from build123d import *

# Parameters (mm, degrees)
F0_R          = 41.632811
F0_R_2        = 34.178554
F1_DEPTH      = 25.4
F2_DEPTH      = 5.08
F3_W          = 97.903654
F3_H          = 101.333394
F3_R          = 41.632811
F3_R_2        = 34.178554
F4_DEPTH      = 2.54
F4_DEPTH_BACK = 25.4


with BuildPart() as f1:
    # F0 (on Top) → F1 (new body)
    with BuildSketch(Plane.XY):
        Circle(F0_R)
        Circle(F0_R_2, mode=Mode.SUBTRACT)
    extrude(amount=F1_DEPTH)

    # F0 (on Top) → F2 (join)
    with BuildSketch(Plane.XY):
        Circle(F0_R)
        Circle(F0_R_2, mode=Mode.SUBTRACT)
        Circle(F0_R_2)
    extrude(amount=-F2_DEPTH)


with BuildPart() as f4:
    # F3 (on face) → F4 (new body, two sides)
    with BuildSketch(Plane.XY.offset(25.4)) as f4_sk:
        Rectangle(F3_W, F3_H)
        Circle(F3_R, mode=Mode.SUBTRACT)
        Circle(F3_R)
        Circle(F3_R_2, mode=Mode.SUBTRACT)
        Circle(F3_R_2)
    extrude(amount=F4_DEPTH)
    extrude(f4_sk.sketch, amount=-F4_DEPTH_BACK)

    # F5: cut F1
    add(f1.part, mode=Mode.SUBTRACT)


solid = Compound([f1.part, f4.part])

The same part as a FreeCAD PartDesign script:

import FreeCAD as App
import Part
import Sketcher

V = App.Vector
Q = App.Units.Quantity


def add_polygon(sketch, points):
    """Adds a closed chain of lines whose ends are joined by coincident constraints."""
    first, n = sketch.GeometryCount, len(points)
    for a, b in zip(points, points[1:] + points[:1]):
        sketch.addGeometry(Part.LineSegment(App.Vector(*a, 0), App.Vector(*b, 0)), False)
    for i in range(n):
        sketch.addConstraint(Sketcher.Constraint("Coincident", first + i, 2, first + (i + 1) % n, 1))

doc = App.newDocument("Part")
body = doc.addObject("PartDesign::Body", "Body")

# Sketch on XY plane
sketch1 = body.newObject("Sketcher::SketchObject", "Sketch")
sketch1.AttachmentSupport = (doc.getObject("XY_Plane"), [""])
sketch1.MapMode = "FlatFace"
sketch1.addGeometry(Part.Circle(V(0, 0, 0), V(0, 0, 1), 42), False)
sketch1.addGeometry(Part.Circle(V(0, 0, 0), V(0, 0, 1), 34), False)
sketch1.addConstraint(Sketcher.Constraint("Coincident", 0, 3, -1, 1))
sketch1.addConstraint(Sketcher.Constraint("Coincident", 1, 3, -1, 1))
sketch1.addConstraint(Sketcher.Constraint("Diameter", 0, 83.265622))
sketch1.addConstraint(Sketcher.Constraint("Diameter", 1, 68.357108))
pad1 = body.newObject("PartDesign::Pad", "Pad")
pad1.Profile = sketch1
pad1.Length = Q("1 in")

# Sketch on XY plane
sketch2 = body.newObject("Sketcher::SketchObject", "Sketch001")
sketch2.AttachmentSupport = (doc.getObject("XY_Plane"), [""])
sketch2.MapMode = "FlatFace"
sketch2.addGeometry(Part.Circle(V(0, 0, 0), V(0, 0, 1), 42), False)
sketch2.addConstraint(Sketcher.Constraint("Coincident", 0, 3, -1, 1))
sketch2.addConstraint(Sketcher.Constraint("Diameter", 0, 83.265622))
pad2 = body.newObject("PartDesign::Pad", "Pad001")
pad2.Profile = sketch2
pad2.Length = Q("0.2 in")
pad2.Reversed = True
body2 = doc.addObject("PartDesign::Body", "Body001")

# Sketch on XY plane
sketch3 = body2.newObject("Sketcher::SketchObject", "Sketch002")
sketch3.AttachmentSupport = (doc.getObject("XY_Plane001"), [""])
sketch3.MapMode = "FlatFace"
sketch3.AttachmentOffset = App.Placement(V(0, 0, 1 * 25.4), App.Rotation())
add_polygon(sketch3, [(-49, 51), (-49, -51), (49, -51), (49, 51)])  # lines 0-3
sketch3.addConstraint(Sketcher.Constraint("Vertical", 0))
sketch3.addConstraint(Sketcher.Constraint("Horizontal", 1))
sketch3.addConstraint(Sketcher.Constraint("Vertical", 2))
sketch3.addConstraint(Sketcher.Constraint("Horizontal", 3))
sketch3.addConstraint(Sketcher.Constraint("Symmetric", 0, 2, 2, 2, -1, 1))
sketch3.addConstraint(Sketcher.Constraint("DistanceX", 1, 1, 1, 2, 97.903654))
sketch3.addConstraint(Sketcher.Constraint("DistanceY", 0, 2, 0, 1, 101.333394))
pad3 = body2.newObject("PartDesign::Pad", "Pad002")
pad3.Profile = sketch3
pad3.Type = "TwoLengths"
pad3.Length = Q("0.1 in")
pad3.Length2 = Q("1 in")
doc.recompute()

body3 = doc.addObject("PartDesign::Body", "Body002")
body3.BaseFeature = body
boolean = body2.newObject("PartDesign::Boolean", "Boolean")
boolean.Type = "Cut"
boolean.addObjects([body3])
doc.recompute()

doc.recompute()
